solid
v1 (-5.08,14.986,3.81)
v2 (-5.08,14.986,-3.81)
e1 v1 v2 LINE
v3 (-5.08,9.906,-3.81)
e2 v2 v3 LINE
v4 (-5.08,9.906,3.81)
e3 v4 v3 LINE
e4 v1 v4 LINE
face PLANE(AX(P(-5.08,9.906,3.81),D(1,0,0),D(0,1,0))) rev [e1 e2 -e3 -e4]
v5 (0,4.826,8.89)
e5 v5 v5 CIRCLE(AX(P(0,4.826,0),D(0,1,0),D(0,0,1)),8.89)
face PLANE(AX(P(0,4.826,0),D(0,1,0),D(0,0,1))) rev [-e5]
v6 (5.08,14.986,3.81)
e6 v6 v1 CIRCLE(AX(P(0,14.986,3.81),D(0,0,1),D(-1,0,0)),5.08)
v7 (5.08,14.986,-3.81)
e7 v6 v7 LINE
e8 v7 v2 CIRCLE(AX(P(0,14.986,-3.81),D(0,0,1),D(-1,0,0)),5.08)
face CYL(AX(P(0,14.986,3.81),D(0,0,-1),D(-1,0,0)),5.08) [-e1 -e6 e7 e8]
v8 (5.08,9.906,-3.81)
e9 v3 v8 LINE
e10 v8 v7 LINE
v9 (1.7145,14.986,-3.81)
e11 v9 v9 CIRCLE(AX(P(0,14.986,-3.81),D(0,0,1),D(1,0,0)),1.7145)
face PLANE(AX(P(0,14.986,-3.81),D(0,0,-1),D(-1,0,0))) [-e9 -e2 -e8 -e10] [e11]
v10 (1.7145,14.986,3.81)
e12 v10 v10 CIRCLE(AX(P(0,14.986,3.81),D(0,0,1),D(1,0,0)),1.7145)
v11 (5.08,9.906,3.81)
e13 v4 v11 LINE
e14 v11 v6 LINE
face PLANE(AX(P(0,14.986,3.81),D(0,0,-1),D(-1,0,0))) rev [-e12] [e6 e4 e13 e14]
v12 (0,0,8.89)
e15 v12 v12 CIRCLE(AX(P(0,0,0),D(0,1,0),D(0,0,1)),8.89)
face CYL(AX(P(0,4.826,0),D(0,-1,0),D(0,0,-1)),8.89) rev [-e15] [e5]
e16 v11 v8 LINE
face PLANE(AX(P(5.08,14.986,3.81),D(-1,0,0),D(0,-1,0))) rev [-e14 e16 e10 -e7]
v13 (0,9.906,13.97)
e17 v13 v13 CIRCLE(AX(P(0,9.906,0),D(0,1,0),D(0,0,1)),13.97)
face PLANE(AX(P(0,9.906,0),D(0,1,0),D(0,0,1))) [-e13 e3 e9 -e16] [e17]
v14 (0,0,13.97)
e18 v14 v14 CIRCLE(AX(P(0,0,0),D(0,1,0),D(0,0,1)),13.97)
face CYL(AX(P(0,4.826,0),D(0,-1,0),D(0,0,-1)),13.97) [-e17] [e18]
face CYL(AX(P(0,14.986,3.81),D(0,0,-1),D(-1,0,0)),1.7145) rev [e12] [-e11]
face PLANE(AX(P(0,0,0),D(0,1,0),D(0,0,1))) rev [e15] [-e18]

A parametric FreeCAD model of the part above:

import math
import FreeCAD as App
import Part
import Sketcher
from FreeCAD import Vector
Q = App.Units.Quantity

doc = App.newDocument("Part")
params = doc.addObject("Spreadsheet::Sheet", "Params")
for row, (alias, value) in enumerate([
    ("sketch1_diameter", "1.1 in"),
    ("sketch1_diameter2", "0.7 in"),
    ("pad1_length", "0.19 in"),
    ("sketch2_diameter", "1.1 in"),
    ("pad2_length", "0.2 in"),
    ("sketch3_radius", "0.2 in"),
    ("sketch3_diameter", "0.135 in"),
    ("sketch3_height", "0.2 in"),
    ("pad3_length", "0.3 in"),
], start=1):
    params.set(f"A{row}", alias)
    params.set(f"B{row}", "=" + value)
    params.setAlias(f"B{row}", alias)

body = doc.addObject("PartDesign::Body", "Body")

# Sketch on XZ plane
sketch1 = body.newObject("Sketcher::SketchObject", "Sketch")
sketch1.AttachmentSupport = (doc.getObject("XZ_Plane"), [""])
sketch1.MapMode = "FlatFace"
sketch1.addGeometry([
    Part.Circle(Vector(0, 0, 0), Vector(0, 0, 1), 14),
    Part.Circle(Vector(0, 0, 0), Vector(0, 0, 1), 9),
], False)
sketch1.addConstraint([
    Sketcher.Constraint("Coincident", 0, 3, -1, 1),
    Sketcher.Constraint("Coincident", 1, 3, -1, 1),
    Sketcher.Constraint("Diameter", 0, Q("1.1 in")),
    Sketcher.Constraint("Diameter", 1, Q("0.7 in")),
])
sketch1.setExpression("Constraints[2]", "Params.sketch1_diameter")
sketch1.setExpression("Constraints[3]", "Params.sketch1_diameter2")
pad1 = body.newObject("PartDesign::Pad", "Pad")
pad1.Profile = sketch1
pad1.setExpression("Length", "Params.pad1_length")
pad1.Reversed = True

# Sketch on XZ plane
sketch2 = body.newObject("Sketcher::SketchObject", "Sketch001")
sketch2.AttachmentSupport = (doc.getObject("XZ_Plane"), [""])
sketch2.MapMode = "FlatFace"
sketch2.AttachmentOffset = App.Placement(Vector(0, 0, -0.19 * 25.4), App.Rotation())
sketch2.addGeometry(Part.Circle(Vector(0, 0, 0), Vector(0, 0, 1), 14), False)
sketch2.addConstraint([
    Sketcher.Constraint("Coincident", 0, 3, -1, 1),
    Sketcher.Constraint("Diameter", 0, Q("1.1 in")),
])
sketch2.setExpression("Constraints[1]", "Params.sketch2_diameter")
pad2 = body.newObject("PartDesign::Pad", "Pad001")
pad2.Profile = sketch2
pad2.setExpression("Length", "Params.pad2_length")
pad2.Reversed = True

# Sketch on XY plane
sketch3 = body.newObject("Sketcher::SketchObject", "Sketch002")
sketch3.AttachmentSupport = (doc.getObject("XY_Plane"), [""])
sketch3.MapMode = "FlatFace"
sketch3.addGeometry([
    Part.LineSegment(Vector(-5.1, 15, 0), Vector(-5.1, 9.9, 0)),  # 0
    Part.LineSegment(Vector(-5.1, 9.9, 0), Vector(5.1, 9.9, 0)),  # 1
    Part.LineSegment(Vector(5.1, 9.9, 0), Vector(5.1, 15, 0)),  # 2
    Part.ArcOfCircle(Part.Circle(Vector(0, 15, 0), Vector(0, 0, 1), 5.1), math.radians(0), math.radians(180)),  # 3
    Part.Circle(Vector(0, 15, 0), Vector(0, 0, 1), 1.7),  # 4
], False)
sketch3.addConstraint([
    Sketcher.Constraint("Coincident", 0, 2, 1, 1),
    Sketcher.Constraint("Coincident", 1, 2, 2, 1),
    Sketcher.Constraint("Tangent", 2, 2, 3, 1),
    Sketcher.Constraint("Tangent", 3, 2, 0, 1),
    Sketcher.Constraint("Vertical", 0),
    Sketcher.Constraint("Horizontal", 1),
    Sketcher.Constraint("Vertical", 2),
    Sketcher.Constraint("Coincident", 4, 3, 3, 3),
    Sketcher.Constraint("PointOnObject", 3, 3, -2),
    Sketcher.Constraint("Radius", 3, Q("0.2 in")),
    Sketcher.Constraint("Diameter", 4, Q("0.135 in")),
    Sketcher.Constraint("DistanceY", 0, 2, 0, 1, Q("0.2 in")),
    Sketcher.Constraint("DistanceY", -1, 1, 3, 3, Q("0.59 in")),
])
sketch3.setExpression("Constraints[9]", "Params.sketch3_radius")
sketch3.setExpression("Constraints[10]", "Params.sketch3_diameter")
sketch3.setExpression("Constraints[11]", "Params.sketch3_height")
pad3 = body.newObject("PartDesign::Pad", "Pad002")
pad3.Profile = sketch3
pad3.setExpression("Length", "Params.pad3_length")
pad3.Midplane = True

doc.recompute()
